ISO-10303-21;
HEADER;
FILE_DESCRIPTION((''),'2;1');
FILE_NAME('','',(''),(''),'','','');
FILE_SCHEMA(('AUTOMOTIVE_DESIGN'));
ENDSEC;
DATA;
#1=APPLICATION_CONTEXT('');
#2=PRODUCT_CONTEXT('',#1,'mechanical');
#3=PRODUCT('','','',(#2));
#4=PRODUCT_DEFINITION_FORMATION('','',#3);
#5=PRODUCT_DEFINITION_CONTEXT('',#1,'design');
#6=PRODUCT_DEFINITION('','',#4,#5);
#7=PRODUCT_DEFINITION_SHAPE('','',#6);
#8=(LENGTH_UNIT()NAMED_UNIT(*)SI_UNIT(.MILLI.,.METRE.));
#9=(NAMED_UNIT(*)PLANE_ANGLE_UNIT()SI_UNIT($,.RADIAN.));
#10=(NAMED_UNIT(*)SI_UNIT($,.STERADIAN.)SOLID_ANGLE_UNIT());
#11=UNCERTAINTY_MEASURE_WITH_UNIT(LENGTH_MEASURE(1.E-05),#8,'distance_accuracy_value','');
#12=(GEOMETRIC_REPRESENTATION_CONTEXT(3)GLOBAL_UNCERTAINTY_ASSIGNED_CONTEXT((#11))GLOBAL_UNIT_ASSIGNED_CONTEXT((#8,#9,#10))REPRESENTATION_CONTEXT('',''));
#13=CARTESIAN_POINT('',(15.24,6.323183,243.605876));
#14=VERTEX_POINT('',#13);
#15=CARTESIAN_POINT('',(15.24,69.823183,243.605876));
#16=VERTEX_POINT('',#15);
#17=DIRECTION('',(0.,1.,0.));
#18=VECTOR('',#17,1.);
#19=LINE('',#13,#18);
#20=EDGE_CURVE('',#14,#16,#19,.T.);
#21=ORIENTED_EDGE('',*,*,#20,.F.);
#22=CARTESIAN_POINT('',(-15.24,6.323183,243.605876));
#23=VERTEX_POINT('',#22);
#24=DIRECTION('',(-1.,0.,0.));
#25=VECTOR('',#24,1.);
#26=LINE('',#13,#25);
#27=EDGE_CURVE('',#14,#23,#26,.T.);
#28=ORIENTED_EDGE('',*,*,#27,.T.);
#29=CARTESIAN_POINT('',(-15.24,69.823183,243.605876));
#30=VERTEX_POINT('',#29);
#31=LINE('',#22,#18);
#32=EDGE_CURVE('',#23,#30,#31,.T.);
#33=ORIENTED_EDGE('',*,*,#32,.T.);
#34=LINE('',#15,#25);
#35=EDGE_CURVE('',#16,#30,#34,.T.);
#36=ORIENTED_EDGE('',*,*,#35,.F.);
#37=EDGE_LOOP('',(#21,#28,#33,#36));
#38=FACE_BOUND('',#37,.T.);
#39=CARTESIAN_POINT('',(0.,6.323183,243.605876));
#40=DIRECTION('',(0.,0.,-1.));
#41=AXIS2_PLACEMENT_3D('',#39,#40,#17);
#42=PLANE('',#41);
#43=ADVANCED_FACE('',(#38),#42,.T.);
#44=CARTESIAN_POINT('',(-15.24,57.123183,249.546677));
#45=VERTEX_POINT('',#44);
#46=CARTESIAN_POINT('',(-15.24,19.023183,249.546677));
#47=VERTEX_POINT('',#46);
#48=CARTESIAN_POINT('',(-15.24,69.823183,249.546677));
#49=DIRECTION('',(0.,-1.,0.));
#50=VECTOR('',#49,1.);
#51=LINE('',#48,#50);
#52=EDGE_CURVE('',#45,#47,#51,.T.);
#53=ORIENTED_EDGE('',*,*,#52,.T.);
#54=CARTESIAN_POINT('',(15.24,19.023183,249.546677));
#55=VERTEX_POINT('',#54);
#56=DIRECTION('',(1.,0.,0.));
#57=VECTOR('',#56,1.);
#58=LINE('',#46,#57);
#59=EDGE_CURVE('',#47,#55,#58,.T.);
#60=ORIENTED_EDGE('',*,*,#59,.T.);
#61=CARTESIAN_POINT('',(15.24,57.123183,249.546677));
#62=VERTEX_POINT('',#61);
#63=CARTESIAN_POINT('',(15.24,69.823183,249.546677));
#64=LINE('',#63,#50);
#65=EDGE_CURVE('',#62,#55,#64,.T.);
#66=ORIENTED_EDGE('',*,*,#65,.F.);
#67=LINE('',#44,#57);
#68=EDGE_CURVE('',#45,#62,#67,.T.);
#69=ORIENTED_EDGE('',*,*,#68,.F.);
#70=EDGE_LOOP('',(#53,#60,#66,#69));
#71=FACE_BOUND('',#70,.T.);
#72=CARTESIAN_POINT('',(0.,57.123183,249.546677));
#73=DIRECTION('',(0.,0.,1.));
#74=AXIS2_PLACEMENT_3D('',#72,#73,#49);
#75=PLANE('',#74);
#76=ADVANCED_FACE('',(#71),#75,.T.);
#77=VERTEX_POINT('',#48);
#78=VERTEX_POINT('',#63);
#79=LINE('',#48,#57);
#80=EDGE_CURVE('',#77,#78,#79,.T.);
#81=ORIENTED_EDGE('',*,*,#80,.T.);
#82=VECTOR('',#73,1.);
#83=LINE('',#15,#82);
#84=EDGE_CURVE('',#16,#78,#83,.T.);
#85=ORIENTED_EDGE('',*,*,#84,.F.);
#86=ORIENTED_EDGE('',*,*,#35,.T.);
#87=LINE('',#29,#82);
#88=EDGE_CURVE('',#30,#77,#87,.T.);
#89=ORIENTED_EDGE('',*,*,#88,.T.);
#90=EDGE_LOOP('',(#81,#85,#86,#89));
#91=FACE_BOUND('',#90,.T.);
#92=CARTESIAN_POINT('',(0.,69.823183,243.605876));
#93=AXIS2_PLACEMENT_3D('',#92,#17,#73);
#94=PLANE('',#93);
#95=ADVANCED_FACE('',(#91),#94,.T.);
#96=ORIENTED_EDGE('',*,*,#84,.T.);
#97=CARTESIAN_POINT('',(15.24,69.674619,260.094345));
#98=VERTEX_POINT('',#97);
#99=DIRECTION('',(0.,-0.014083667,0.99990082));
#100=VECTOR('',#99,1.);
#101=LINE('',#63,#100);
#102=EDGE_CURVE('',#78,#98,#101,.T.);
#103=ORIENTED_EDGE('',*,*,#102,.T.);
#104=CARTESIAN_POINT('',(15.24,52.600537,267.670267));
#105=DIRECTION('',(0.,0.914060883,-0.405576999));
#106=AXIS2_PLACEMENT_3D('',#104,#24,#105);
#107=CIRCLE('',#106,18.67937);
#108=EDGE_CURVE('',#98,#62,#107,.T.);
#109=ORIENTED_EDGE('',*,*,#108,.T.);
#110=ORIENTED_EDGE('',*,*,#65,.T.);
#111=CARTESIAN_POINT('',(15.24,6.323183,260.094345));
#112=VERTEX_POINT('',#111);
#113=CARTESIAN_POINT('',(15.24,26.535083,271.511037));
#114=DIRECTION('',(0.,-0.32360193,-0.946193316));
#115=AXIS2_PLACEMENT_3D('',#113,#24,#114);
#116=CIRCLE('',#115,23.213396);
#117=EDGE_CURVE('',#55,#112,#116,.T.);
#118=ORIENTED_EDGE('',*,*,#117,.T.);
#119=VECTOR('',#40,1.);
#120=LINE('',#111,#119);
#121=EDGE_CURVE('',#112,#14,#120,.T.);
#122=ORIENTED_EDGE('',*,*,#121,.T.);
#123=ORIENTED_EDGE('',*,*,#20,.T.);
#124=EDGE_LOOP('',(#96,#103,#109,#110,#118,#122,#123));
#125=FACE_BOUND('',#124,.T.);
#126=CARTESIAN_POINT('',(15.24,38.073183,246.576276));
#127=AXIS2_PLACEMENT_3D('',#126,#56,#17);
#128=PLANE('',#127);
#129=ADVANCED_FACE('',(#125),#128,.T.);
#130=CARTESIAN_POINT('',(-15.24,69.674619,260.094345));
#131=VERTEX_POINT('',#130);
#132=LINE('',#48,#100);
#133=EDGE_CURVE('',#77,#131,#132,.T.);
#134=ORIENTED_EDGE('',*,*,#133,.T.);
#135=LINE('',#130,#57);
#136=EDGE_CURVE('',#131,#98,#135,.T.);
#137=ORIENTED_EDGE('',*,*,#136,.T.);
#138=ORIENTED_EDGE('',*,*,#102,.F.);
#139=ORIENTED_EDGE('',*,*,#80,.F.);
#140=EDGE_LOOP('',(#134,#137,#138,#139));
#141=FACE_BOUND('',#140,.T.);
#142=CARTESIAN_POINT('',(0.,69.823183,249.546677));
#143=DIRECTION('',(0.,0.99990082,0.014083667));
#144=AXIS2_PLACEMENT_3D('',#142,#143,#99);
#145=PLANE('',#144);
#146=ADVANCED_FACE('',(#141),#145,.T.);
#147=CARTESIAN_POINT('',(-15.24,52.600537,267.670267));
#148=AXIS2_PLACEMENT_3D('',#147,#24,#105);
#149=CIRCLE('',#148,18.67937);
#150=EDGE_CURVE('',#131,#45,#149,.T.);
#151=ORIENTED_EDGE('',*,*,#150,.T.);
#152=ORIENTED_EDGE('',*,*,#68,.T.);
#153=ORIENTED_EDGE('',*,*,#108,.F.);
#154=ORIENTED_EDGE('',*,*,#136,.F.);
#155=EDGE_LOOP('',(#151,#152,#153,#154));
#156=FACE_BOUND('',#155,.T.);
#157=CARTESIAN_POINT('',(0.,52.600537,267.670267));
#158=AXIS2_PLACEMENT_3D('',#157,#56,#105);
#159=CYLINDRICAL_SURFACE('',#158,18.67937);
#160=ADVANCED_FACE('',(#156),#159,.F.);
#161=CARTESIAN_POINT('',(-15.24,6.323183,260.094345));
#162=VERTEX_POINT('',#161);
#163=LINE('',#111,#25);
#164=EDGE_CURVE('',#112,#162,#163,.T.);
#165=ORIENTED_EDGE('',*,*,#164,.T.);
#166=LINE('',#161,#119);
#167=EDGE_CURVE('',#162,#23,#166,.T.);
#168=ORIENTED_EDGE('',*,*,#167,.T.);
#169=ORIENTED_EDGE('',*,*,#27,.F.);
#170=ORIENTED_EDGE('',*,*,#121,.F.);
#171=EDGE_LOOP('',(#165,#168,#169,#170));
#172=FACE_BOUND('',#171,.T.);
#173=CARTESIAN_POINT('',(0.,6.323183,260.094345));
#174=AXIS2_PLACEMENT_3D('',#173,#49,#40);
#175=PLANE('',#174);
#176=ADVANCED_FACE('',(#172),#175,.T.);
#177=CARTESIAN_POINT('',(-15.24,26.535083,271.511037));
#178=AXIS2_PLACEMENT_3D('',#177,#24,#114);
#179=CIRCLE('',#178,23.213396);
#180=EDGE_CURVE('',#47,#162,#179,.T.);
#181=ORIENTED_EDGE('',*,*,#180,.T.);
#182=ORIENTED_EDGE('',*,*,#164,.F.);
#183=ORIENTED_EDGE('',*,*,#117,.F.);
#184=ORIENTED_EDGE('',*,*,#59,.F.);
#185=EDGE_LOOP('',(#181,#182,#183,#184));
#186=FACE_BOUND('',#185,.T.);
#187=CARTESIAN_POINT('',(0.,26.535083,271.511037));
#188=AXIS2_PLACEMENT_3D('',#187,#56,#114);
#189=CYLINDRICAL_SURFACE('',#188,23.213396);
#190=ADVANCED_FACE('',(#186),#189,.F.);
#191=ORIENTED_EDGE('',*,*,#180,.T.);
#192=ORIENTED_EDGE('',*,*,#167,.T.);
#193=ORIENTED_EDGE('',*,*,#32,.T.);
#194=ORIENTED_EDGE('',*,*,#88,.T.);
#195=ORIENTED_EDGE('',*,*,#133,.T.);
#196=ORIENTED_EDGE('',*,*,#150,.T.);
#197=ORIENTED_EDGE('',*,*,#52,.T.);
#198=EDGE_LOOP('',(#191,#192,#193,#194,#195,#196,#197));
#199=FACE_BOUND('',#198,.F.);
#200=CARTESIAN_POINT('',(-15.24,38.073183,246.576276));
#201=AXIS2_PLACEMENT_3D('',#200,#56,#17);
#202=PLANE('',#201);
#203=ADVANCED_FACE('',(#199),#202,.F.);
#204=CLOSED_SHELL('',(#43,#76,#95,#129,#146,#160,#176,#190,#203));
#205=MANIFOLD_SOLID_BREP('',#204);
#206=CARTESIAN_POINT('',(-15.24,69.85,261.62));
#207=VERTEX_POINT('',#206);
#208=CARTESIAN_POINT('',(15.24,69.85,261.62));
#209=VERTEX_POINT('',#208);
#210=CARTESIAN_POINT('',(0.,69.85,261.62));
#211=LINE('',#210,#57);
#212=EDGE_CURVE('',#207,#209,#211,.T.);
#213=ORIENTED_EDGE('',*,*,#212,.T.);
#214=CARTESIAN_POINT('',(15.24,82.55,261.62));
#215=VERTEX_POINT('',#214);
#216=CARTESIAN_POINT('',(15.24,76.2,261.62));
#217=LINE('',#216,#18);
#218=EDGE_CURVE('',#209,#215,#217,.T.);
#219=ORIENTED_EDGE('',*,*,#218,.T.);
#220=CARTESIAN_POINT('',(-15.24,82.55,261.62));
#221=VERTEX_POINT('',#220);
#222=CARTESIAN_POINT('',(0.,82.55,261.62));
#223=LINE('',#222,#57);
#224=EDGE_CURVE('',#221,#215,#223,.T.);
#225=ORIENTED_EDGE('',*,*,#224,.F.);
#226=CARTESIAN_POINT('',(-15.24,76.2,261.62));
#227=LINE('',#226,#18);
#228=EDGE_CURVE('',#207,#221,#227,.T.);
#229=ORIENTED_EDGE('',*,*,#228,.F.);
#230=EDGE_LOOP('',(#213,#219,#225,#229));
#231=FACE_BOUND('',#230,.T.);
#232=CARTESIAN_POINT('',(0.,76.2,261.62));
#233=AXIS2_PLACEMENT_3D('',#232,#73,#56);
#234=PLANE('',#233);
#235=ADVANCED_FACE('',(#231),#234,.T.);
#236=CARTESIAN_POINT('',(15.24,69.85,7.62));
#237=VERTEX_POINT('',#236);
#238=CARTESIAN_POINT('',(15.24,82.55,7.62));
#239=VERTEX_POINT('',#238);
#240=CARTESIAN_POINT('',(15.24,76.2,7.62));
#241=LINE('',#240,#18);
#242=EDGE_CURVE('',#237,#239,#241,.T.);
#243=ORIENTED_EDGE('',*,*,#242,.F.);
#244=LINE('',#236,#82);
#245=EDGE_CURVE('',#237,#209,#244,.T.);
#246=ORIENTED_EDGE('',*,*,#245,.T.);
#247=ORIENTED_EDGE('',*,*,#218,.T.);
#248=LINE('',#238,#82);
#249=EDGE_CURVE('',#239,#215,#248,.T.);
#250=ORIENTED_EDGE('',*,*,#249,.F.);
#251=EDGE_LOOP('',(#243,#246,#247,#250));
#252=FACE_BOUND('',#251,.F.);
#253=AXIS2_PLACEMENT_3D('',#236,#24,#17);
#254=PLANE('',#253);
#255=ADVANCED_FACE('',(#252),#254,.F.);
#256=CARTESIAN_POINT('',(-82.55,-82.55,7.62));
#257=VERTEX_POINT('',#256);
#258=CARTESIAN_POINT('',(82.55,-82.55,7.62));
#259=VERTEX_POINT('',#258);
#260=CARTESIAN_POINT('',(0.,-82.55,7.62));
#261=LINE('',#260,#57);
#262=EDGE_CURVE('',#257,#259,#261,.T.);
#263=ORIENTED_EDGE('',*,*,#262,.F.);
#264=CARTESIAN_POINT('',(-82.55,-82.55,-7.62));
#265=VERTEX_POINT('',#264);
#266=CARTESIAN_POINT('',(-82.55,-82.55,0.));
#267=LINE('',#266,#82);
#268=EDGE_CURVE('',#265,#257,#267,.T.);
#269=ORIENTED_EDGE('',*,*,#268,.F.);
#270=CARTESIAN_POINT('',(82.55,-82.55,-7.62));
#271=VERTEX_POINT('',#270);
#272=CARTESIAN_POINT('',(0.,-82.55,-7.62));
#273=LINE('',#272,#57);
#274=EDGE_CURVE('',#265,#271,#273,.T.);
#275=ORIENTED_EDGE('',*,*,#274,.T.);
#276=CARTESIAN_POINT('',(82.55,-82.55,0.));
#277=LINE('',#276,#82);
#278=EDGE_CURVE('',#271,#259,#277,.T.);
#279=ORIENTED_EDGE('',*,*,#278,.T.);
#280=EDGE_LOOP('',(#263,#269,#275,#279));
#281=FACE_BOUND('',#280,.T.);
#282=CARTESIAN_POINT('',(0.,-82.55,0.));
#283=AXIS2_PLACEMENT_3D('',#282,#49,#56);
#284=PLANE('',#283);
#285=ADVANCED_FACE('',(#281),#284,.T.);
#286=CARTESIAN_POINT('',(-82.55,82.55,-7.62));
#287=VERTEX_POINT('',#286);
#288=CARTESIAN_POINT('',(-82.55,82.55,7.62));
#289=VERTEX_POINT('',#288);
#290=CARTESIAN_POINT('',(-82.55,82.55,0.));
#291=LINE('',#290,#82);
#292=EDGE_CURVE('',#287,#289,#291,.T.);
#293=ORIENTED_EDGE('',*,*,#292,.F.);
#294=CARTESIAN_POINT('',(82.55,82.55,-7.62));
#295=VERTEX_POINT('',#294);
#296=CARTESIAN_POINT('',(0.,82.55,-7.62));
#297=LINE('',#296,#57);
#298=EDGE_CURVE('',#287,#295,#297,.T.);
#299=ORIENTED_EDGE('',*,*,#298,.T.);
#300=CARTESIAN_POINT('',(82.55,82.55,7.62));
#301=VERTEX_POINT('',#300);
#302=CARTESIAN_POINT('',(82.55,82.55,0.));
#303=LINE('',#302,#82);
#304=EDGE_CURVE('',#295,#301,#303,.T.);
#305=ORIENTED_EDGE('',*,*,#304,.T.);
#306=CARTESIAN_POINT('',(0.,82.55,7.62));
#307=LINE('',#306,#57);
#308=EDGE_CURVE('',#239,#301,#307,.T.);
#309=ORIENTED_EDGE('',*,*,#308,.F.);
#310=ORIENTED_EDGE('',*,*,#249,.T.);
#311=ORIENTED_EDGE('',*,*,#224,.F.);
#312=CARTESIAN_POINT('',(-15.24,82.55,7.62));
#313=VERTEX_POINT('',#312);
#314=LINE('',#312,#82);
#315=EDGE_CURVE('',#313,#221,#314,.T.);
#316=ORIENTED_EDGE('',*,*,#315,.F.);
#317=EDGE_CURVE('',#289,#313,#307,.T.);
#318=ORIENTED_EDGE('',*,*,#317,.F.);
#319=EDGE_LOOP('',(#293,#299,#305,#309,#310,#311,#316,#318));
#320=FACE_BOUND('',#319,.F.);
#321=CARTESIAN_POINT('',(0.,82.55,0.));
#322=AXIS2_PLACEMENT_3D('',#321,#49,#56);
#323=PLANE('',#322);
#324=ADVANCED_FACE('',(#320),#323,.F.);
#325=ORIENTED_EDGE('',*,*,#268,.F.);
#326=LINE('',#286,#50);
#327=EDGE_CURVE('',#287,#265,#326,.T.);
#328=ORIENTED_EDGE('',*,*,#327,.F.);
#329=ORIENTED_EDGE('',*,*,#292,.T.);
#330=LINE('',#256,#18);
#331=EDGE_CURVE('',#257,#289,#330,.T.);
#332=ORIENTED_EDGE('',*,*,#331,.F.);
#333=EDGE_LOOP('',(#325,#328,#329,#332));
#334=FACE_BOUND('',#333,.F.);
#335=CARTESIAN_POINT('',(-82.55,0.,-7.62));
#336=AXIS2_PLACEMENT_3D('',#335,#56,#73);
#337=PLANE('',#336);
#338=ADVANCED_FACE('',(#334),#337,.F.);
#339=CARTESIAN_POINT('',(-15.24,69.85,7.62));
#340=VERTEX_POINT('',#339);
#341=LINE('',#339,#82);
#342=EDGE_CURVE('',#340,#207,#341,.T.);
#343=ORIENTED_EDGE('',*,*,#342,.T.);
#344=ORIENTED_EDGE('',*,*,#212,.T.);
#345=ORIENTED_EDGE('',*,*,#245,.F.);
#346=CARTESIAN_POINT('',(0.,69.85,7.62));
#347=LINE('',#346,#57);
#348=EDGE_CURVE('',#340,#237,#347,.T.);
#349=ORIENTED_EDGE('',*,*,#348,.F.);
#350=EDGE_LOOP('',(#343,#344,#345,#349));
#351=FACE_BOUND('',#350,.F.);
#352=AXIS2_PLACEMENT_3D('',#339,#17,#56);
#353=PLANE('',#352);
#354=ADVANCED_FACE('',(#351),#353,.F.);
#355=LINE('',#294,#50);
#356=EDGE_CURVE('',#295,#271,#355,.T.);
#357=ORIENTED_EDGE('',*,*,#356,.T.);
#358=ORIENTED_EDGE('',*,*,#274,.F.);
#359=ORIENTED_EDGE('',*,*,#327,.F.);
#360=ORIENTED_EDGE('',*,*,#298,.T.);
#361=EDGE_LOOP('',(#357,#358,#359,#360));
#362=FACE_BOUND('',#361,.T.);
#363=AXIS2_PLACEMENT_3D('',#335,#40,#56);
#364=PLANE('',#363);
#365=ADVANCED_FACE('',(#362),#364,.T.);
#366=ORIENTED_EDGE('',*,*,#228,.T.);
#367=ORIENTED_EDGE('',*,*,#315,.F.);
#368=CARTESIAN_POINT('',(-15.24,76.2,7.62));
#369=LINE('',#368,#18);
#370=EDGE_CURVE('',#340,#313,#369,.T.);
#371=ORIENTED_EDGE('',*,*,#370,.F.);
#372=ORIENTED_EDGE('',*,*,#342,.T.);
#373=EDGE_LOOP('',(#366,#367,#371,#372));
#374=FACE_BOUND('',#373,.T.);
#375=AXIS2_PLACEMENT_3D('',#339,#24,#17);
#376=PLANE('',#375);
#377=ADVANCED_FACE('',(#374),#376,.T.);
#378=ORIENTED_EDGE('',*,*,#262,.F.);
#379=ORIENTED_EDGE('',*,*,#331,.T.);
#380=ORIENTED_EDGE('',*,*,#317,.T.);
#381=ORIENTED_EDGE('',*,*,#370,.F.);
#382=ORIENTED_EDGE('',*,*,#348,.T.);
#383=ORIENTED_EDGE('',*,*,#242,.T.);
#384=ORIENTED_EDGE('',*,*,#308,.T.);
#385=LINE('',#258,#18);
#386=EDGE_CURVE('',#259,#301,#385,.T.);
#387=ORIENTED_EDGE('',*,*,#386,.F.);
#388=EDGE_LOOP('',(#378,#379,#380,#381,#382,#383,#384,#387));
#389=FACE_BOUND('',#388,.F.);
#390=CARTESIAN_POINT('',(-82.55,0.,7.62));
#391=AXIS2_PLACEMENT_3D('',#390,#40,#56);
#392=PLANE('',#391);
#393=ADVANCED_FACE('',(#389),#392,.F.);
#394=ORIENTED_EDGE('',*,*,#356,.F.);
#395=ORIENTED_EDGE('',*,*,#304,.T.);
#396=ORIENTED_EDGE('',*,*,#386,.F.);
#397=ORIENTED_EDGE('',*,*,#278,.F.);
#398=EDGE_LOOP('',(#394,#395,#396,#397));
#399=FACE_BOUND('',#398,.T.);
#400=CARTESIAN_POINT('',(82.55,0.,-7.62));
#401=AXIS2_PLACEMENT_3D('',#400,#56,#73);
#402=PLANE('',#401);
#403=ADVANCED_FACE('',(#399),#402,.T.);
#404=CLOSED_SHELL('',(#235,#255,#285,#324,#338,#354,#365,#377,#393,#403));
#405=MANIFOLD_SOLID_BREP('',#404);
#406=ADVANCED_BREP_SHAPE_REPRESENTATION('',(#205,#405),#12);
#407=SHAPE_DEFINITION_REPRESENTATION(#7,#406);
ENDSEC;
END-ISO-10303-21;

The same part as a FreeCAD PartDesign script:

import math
import FreeCAD as App
import Part
import Sketcher

V = App.Vector
Q = App.Units.Quantity

doc = App.newDocument("Part")
body = doc.addObject("PartDesign::Body", "Body")

# Sketch on XZ plane
sketch1 = body.newObject("Sketcher::SketchObject", "Sketch")
sketch1.AttachmentSupport = (doc.getObject("XZ_Plane"), [""])
sketch1.MapMode = "FlatFace"
sketch1.addGeometry(Part.LineSegment(V(-82.55, 7.62, 0), V(-82.55, -7.62, 0)), False)
sketch1.addGeometry(Part.LineSegment(V(-82.55, -7.62, 0), V(82.55, -7.62, 0)), False)
sketch1.addGeometry(Part.LineSegment(V(82.55, -7.62, 0), V(82.55, 7.62, 0)), False)
sketch1.addGeometry(Part.LineSegment(V(82.55, 7.62, 0), V(-82.55, 7.62, 0)), False)
sketch1.addConstraint(Sketcher.Constraint("Coincident", 0, 2, 1, 1))
sketch1.addConstraint(Sketcher.Constraint("Coincident", 1, 2, 2, 1))
sketch1.addConstraint(Sketcher.Constraint("Coincident", 2, 2, 3, 1))
sketch1.addConstraint(Sketcher.Constraint("Coincident", 3, 2, 0, 1))
sketch1.addConstraint(Sketcher.Constraint("Vertical", 0))
sketch1.addConstraint(Sketcher.Constraint("Horizontal", 1))
sketch1.addConstraint(Sketcher.Constraint("Vertical", 2))
sketch1.addConstraint(Sketcher.Constraint("Horizontal", 3))
sketch1.addConstraint(Sketcher.Constraint("Symmetric", 0, 2, 2, 2, -1, 1))
sketch1.addConstraint(Sketcher.Constraint("DistanceX", 1, 1, 1, 2, Q("6.5 in")))
sketch1.addConstraint(Sketcher.Constraint("DistanceY", 0, 2, 0, 1, Q("0.6 in")))
pad1 = body.newObject("PartDesign::Pad", "Pad")
pad1.Profile = sketch1
pad1.Length = Q("6.5 in")
pad1.Midplane = True

# Sketch on XY plane
sketch2 = body.newObject("Sketcher::SketchObject", "Sketch001")
sketch2.AttachmentSupport = (doc.getObject("XY_Plane"), [""])
sketch2.MapMode = "FlatFace"
sketch2.AttachmentOffset = App.Placement(V(0, 0, 0.3 * 25.4), App.Rotation())
sketch2.addGeometry(Part.LineSegment(V(-15.24, 82.55, 0), V(-15.24, 69.85, 0)), False)
sketch2.addGeometry(Part.LineSegment(V(-15.24, 69.85, 0), V(15.24, 69.85, 0)), False)
sketch2.addGeometry(Part.LineSegment(V(15.24, 69.85, 0), V(15.24, 82.55, 0)), False)
sketch2.addGeometry(Part.LineSegment(V(15.24, 82.55, 0), V(-15.24, 82.55, 0)), False)
sketch2.addConstraint(Sketcher.Constraint("Coincident", 0, 2, 1, 1))
sketch2.addConstraint(Sketcher.Constraint("Coincident", 1, 2, 2, 1))
sketch2.addConstraint(Sketcher.Constraint("Coincident", 2, 2, 3, 1))
sketch2.addConstraint(Sketcher.Constraint("Coincident", 3, 2, 0, 1))
sketch2.addConstraint(Sketcher.Constraint("Vertical", 0))
sketch2.addConstraint(Sketcher.Constraint("Horizontal", 1))
sketch2.addConstraint(Sketcher.Constraint("Vertical", 2))
sketch2.addConstraint(Sketcher.Constraint("Horizontal", 3))
sketch2.addConstraint(Sketcher.Constraint("DistanceX", 1, 1, 1, 2, Q("1.2 in")))
sketch2.addConstraint(Sketcher.Constraint("DistanceY", 0, 2, 0, 1, Q("0.5 in")))
sketch2.addConstraint(Sketcher.Constraint("DistanceX", 0, 2, -1, 1, Q("0.6 in")))
sketch2.addConstraint(Sketcher.Constraint("DistanceY", -1, 1, 0, 2, Q("2.75 in")))
pad2 = body.newObject("PartDesign::Pad", "Pad001")
pad2.Profile = sketch2
pad2.Length = Q("10 in")
body2 = doc.addObject("PartDesign::Body", "Body001")

# Sketch on YZ plane
sketch3 = body2.newObject("Sketcher::SketchObject", "Sketch002")
sketch3.AttachmentSupport = (doc.getObject("YZ_Plane001"), [""])
sketch3.MapMode = "FlatFace"
sketch3.addGeometry(Part.LineSegment(V(69.823183, 243.605876, 0), V(69.823183, 249.546677, 0)), False)
sketch3.addGeometry(Part.LineSegment(V(69.823183, 249.546677, 0), V(69.674619, 260.094345, 0)), False)
sketch3.addGeometry(Part.ArcOfCircle(Part.Circle(V(52.600537, 267.670267, 0), V(0, 0, 1), 18.67937), math.radians(-75.988312), math.radians(-23.92729)), False)
sketch3.addGeometry(Part.LineSegment(V(57.123183, 249.546677, 0), V(19.023183, 249.546677, 0)), False)
sketch3.addGeometry(Part.ArcOfCircle(Part.Circle(V(26.535083, 271.511037, 0), V(0, 0, 1), 23.213396), math.radians(-150.540065), math.radians(-108.880895)), False)
sketch3.addGeometry(Part.LineSegment(V(6.323183, 260.094345, 0), V(6.323183, 243.605876, 0)), False)
sketch3.addGeometry(Part.LineSegment(V(6.323183, 243.605876, 0), V(69.823183, 243.605876, 0)), False)
sketch3.addConstraint(Sketcher.Constraint("Coincident", 0, 2, 1, 1))
sketch3.addConstraint(Sketcher.Constraint("Coincident", 1, 2, 2, 2))
sketch3.addConstraint(Sketcher.Constraint("Coincident", 2, 1, 3, 1))
sketch3.addConstraint(Sketcher.Constraint("Coincident", 3, 2, 4, 2))
sketch3.addConstraint(Sketcher.Constraint("Coincident", 4, 1, 5, 1))
sketch3.addConstraint(Sketcher.Constraint("Coincident", 5, 2, 6, 1))
sketch3.addConstraint(Sketcher.Constraint("Coincident", 6, 2, 0, 1))
sketch3.addConstraint(Sketcher.Constraint("Vertical", 0))
sketch3.addConstraint(Sketcher.Constraint("Horizontal", 3))
sketch3.addConstraint(Sketcher.Constraint("Vertical", 5))
sketch3.addConstraint(Sketcher.Constraint("Horizontal", 6))
sketch3.addConstraint(Sketcher.Constraint("Horizontal", 0, 2, 2, 1))
sketch3.addConstraint(Sketcher.Constraint("Horizontal", 1, 2, 4, 1))
sketch3.addConstraint(Sketcher.Constraint("DistanceX", 3, 2, 3, 1, Q("1.5 in")))
sketch3.addConstraint(Sketcher.Constraint("DistanceX", 6, 1, 6, 2, Q("2.5 in")))
sketch3.addConstraint(Sketcher.Constraint("DistanceX", 3, 2, 0, 2, Q("2 in")))
sketch3.addConstraint(Sketcher.Constraint("Radius", 2, Q("18.67937 mm")))
sketch3.addConstraint(Sketcher.Constraint("DistanceY", 0, 1, 0, 2, Q("5.940801 mm")))
sketch3.addConstraint(Sketcher.Constraint("Radius", 4, Q("23.213396 mm")))
sketch3.addConstraint(Sketcher.Constraint("DistanceY", 5, 2, 5, 1, Q("16.488469 mm")))
sketch3.addConstraint(Sketcher.Constraint("DistanceX", -1, 1, 1, 2, Q("69.674619 mm")))
sketch3.addConstraint(Sketcher.Constraint("DistanceY", 2, 3, 4, 3, Q("3.84077 mm")))
sketch3.addConstraint(Sketcher.Constraint("DistanceY", -1, 1, 2, 3, Q("267.670267 mm")))
pad3 = body2.newObject("PartDesign::Pad", "Pad002")
pad3.Profile = sketch3
pad3.Length = Q("1.2 in")
pad3.Midplane = True

doc.recompute()
